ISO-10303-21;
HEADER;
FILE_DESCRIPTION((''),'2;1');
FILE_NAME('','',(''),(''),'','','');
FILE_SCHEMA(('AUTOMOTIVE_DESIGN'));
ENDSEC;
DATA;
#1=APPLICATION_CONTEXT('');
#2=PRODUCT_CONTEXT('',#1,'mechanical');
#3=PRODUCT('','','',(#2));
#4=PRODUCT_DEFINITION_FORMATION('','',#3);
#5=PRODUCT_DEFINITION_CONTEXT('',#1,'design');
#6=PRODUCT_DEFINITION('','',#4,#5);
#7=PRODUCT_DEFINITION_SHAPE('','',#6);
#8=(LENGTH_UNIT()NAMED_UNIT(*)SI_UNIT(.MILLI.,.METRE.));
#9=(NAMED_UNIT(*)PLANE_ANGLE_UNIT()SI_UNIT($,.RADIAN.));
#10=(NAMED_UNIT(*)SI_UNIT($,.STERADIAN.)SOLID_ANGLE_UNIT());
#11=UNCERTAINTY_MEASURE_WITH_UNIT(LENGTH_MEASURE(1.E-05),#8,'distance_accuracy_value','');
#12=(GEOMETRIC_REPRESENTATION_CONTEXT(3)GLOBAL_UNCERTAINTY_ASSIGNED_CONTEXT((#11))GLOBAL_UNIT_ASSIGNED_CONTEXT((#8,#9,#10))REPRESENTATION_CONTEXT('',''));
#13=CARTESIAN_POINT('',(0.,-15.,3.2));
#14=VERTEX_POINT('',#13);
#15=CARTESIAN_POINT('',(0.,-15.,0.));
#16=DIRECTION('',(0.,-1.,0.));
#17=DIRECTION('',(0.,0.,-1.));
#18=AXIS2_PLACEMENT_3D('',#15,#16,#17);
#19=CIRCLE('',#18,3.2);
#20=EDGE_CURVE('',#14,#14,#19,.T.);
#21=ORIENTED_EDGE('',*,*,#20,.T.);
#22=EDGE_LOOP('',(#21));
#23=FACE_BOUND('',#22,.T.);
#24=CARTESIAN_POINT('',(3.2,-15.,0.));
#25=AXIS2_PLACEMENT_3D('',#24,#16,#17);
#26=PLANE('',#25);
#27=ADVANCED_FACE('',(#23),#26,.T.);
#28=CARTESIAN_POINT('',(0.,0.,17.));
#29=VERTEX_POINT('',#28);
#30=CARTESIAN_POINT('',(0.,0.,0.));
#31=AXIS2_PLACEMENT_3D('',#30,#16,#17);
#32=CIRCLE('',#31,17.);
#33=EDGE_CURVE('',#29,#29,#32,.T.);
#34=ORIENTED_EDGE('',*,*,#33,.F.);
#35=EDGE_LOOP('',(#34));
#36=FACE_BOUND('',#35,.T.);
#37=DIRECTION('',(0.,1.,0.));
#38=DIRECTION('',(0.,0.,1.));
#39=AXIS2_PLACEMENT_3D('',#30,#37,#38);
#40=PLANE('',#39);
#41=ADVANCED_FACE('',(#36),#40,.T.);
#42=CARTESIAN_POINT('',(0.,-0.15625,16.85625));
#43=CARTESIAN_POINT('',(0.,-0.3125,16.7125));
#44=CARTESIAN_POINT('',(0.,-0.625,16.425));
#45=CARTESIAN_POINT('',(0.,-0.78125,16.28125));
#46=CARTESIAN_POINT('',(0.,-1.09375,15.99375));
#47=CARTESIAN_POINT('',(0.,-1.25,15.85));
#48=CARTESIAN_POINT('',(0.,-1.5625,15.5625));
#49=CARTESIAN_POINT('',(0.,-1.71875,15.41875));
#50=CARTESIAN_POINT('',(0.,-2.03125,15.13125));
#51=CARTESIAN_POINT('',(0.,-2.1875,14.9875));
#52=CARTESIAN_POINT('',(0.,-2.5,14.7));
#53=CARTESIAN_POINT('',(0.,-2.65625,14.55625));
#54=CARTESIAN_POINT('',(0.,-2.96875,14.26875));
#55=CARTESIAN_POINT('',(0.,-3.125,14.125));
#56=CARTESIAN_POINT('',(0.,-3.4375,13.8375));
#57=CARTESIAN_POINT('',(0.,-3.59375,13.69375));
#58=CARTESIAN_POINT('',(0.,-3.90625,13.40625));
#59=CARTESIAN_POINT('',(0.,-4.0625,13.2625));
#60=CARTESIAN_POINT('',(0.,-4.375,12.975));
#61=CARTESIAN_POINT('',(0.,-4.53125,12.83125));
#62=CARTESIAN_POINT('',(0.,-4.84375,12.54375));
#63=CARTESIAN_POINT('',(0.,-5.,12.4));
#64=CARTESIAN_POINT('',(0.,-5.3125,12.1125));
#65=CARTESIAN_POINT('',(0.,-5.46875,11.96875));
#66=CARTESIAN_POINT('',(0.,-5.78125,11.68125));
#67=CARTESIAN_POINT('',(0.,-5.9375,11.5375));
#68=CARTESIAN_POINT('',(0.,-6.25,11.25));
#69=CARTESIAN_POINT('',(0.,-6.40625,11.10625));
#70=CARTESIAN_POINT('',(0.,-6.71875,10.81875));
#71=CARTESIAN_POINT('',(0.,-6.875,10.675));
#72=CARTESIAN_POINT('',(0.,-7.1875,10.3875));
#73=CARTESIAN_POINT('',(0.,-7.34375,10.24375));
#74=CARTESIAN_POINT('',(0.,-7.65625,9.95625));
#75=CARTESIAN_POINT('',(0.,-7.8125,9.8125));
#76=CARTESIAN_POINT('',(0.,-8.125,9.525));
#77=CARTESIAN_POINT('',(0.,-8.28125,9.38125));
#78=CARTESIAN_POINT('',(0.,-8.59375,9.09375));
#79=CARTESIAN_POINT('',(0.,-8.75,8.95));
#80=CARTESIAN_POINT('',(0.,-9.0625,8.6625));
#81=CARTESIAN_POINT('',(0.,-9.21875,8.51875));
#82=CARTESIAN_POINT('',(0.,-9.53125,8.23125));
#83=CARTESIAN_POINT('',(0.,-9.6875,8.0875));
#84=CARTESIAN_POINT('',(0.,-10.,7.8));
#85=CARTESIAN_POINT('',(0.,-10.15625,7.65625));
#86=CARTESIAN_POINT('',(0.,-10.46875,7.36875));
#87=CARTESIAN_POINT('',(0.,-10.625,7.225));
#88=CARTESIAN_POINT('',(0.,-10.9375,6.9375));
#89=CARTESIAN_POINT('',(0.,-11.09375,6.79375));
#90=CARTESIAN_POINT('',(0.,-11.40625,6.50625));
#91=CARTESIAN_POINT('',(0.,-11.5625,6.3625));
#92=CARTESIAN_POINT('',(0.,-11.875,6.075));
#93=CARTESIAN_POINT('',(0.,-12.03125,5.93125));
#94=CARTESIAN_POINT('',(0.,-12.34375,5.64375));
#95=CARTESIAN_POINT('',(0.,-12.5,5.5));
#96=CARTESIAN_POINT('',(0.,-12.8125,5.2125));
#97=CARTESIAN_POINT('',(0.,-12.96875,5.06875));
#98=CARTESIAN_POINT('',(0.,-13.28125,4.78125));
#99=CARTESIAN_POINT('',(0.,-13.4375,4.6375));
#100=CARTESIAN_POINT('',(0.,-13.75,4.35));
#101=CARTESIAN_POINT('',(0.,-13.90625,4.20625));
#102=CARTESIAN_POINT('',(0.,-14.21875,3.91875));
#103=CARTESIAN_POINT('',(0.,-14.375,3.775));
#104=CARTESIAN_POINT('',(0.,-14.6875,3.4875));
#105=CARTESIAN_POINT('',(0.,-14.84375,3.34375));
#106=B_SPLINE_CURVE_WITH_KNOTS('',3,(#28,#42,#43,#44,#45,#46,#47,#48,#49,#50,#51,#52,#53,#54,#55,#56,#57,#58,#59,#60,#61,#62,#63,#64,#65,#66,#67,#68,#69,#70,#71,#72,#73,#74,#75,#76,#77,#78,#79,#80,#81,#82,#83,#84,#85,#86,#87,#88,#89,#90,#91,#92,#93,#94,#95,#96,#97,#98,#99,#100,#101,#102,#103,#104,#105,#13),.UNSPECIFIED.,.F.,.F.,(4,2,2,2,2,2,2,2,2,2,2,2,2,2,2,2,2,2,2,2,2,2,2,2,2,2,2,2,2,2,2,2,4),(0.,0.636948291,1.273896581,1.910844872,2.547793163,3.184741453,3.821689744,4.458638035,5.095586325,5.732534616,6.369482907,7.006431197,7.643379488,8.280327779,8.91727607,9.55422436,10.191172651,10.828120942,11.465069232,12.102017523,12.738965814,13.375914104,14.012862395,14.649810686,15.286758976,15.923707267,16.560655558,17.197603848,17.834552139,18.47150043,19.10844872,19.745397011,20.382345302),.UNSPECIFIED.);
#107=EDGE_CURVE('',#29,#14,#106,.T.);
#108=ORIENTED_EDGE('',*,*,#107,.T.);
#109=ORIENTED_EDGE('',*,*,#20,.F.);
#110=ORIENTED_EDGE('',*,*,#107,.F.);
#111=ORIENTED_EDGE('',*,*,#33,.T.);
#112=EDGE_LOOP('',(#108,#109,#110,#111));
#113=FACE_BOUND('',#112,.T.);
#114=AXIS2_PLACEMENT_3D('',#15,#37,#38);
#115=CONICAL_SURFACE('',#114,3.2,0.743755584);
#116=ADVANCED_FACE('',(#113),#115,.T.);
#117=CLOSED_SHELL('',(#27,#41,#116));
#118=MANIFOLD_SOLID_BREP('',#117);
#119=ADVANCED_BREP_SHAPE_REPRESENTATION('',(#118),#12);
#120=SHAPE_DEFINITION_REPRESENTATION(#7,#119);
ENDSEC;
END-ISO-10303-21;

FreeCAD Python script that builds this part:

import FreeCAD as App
import Part
import Sketcher


def add_polygon(sketch, points):
    """Adds a closed chain of lines whose ends are joined by coincident constraints."""
    first, n = sketch.GeometryCount, len(points)
    for a, b in zip(points, points[1:] + points[:1]):
        sketch.addGeometry(Part.LineSegment(App.Vector(*a, 0), App.Vector(*b, 0)), False)
    for i in range(n):
        sketch.addConstraint(Sketcher.Constraint("Coincident", first + i, 2, first + (i + 1) % n, 1))

doc = App.newDocument("Part")
body = doc.addObject("PartDesign::Body", "Body")

sketch1 = body.newObject("Sketcher::SketchObject", "Sketch")
sketch1.AttachmentSupport = (doc.getObject("XY_Plane"), [""])
sketch1.MapMode = "FlatFace"
add_polygon(sketch1, [(17, 0), (0, 0), (0, -15), (3.2, -15)])
sketch1.addConstraint([
    Sketcher.Constraint("Horizontal", 0),
    Sketcher.Constraint("Vertical", 1),
    Sketcher.Constraint("Horizontal", 2),
    Sketcher.Constraint("Coincident", 0, 2, -1, 1),
    Sketcher.Constraint("DistanceX", 0, 2, 0, 1, 17.0),
    Sketcher.Constraint("DistanceY", 1, 2, 1, 1, 15.0),
    Sketcher.Constraint("DistanceX", 2, 1, 2, 2, 3.2),
])
revolution = body.newObject("PartDesign::Revolution", "Revolution")
revolution.Profile = sketch1
revolution.ReferenceAxis = (sketch1, ["V_Axis"])
revolution.Angle = 360

doc.recompute()
